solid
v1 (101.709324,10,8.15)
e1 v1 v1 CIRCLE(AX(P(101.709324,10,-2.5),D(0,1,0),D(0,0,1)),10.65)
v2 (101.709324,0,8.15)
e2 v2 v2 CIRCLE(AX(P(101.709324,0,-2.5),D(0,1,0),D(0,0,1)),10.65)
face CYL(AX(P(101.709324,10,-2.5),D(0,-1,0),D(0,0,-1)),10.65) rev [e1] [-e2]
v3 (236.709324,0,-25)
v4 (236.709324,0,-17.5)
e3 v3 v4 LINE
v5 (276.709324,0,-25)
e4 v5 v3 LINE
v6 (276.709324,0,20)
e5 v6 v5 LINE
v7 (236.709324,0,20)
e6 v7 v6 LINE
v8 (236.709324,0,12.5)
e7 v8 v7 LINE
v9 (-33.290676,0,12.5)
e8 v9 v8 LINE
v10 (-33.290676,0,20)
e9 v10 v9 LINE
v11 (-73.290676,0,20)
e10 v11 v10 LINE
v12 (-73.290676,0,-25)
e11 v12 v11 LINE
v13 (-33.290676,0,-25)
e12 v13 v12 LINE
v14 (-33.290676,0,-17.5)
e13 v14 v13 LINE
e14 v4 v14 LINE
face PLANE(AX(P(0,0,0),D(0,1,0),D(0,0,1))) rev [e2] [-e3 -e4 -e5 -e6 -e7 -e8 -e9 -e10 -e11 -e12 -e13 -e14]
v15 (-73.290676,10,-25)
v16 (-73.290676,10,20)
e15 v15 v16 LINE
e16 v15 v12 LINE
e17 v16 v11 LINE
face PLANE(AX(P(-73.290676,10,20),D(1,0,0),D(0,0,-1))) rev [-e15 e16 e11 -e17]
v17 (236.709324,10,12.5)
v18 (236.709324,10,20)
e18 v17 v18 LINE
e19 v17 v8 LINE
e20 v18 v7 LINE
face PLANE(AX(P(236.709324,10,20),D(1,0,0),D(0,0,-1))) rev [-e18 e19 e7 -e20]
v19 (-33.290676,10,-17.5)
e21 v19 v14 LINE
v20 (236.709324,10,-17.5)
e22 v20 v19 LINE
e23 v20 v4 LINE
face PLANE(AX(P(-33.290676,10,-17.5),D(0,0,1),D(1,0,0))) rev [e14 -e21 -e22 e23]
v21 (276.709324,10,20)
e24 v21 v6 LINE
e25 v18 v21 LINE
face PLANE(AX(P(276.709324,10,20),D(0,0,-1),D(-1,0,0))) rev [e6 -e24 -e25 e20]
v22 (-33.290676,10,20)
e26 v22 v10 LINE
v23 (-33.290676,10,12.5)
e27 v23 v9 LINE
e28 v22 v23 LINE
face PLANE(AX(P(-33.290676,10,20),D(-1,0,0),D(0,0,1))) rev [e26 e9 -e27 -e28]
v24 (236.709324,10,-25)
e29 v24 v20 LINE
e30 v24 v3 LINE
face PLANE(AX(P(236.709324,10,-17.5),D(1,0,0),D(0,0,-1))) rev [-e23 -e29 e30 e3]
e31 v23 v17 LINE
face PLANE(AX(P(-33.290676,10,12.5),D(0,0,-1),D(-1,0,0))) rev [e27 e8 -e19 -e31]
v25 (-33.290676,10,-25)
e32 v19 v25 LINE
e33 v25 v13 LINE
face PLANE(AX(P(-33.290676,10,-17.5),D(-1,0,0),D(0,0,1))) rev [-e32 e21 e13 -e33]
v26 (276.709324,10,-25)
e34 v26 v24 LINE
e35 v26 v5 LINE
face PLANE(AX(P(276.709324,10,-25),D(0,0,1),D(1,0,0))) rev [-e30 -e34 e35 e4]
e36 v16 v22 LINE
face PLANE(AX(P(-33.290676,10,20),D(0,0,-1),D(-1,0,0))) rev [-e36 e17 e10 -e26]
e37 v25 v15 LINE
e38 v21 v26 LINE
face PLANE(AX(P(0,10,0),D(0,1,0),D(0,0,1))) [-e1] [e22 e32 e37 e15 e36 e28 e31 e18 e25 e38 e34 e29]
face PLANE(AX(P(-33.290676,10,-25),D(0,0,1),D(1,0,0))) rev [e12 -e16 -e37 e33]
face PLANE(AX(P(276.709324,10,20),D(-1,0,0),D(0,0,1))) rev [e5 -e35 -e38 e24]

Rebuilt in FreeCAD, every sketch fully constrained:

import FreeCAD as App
import Part
import Sketcher
Q = App.Units.Quantity


def add_polygon(sketch, points):
    """Adds a closed chain of lines whose ends are joined by coincident constraints."""
    first, n = sketch.GeometryCount, len(points)
    for a, b in zip(points, points[1:] + points[:1]):
        sketch.addGeometry(Part.LineSegment(App.Vector(*a, 0), App.Vector(*b, 0)), False)
    for i in range(n):
        sketch.addConstraint(Sketcher.Constraint("Coincident", first + i, 2, first + (i + 1) % n, 1))

doc = App.newDocument("Part")
body = doc.addObject("PartDesign::Body", "Body")

sketch1 = body.newObject("Sketcher::SketchObject", "Sketch")
sketch1.AttachmentSupport = (doc.getObject("XZ_Plane"), [""])
sketch1.MapMode = "FlatFace"
add_polygon(sketch1, [(237, -18), (-33, -18), (-33, -25), (-73, -25), (-73, 20), (-33, 20), (-33, 12), (237, 12), (237, 20), (277, 20), (277, -25), (237, -25)])
sketch1.addGeometry(Part.Circle(App.Vector(102, -2, 0), App.Vector(0, 0, 1), 11), False)
sketch1.addConstraint([
    Sketcher.Constraint("Horizontal", 0),
    Sketcher.Constraint("Vertical", 1),
    Sketcher.Constraint("Horizontal", 2),
    Sketcher.Constraint("Vertical", 3),
    Sketcher.Constraint("Horizontal", 4),
    Sketcher.Constraint("Vertical", 5),
    Sketcher.Constraint("Horizontal", 6),
    Sketcher.Constraint("Vertical", 7),
    Sketcher.Constraint("Horizontal", 8),
    Sketcher.Constraint("Vertical", 9),
    Sketcher.Constraint("Horizontal", 10),
    Sketcher.Constraint("Vertical", 11),
    Sketcher.Constraint("Horizontal", 4, 2, 7, 2),
    Sketcher.Constraint("Horizontal", 2, 2, 9, 2),
    Sketcher.Constraint("Vertical", 1, 2, 4, 2),
    Sketcher.Constraint("Vertical", 7, 2, 10, 2),
    Sketcher.Constraint("Equal", 4, 8),
    Sketcher.Constraint("Equal", 1, 5),
    Sketcher.Constraint("Diameter", 12, Q("21.3 mm")),
    Sketcher.Constraint("DistanceX", 0, 2, 0, 1, Q("270 mm")),
    Sketcher.Constraint("DistanceX", 2, 2, 2, 1, Q("40 mm")),
    Sketcher.Constraint("DistanceY", 3, 1, 3, 2, Q("45 mm")),
    Sketcher.Constraint("DistanceY", 1, 2, 1, 1, Q("7.5 mm")),
    Sketcher.Constraint("DistanceY", 1, 2, -1, 1, Q("25 mm")),
    Sketcher.Constraint("DistanceX", 0, 2, 12, 3, Q("135 mm")),
    Sketcher.Constraint("DistanceY", 0, 2, 12, 3, Q("15 mm")),
    Sketcher.Constraint("DistanceX", -1, 1, 12, 3, Q("101.709324 mm")),
])
pad1 = body.newObject("PartDesign::Pad", "Pad")
pad1.Profile = sketch1
pad1.Length = 10
pad1.Reversed = True

doc.recompute()
